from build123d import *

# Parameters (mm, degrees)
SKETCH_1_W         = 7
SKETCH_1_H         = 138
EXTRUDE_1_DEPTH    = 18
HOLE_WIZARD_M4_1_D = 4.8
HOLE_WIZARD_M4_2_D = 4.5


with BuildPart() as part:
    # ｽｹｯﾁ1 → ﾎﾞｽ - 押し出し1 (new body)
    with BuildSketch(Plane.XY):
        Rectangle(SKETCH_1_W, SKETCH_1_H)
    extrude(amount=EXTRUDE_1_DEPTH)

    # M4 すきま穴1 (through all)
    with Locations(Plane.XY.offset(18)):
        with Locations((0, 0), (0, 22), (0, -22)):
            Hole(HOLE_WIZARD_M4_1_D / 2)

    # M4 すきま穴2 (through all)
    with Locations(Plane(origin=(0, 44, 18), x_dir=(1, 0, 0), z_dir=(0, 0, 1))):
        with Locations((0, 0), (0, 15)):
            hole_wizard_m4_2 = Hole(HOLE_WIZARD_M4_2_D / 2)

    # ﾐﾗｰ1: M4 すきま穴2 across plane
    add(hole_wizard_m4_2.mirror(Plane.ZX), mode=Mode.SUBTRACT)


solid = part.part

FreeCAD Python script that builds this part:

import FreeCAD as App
import Part
import Sketcher
from FreeCAD import Vector

doc = App.newDocument("Part")
params = doc.addObject("Spreadsheet::Sheet", "Params")
for row, (alias, value) in enumerate([
    ("sketch1_width", "7 mm"),
    ("sketch1_height", "138 mm"),
    ("pad1_length", "18 mm"),
    ("sketch2_diameter", "4.8 mm"),
    ("hole_diameter", "4.8 mm"),
    ("sketch3_diameter", "4.5 mm"),
    ("hole2_diameter", "4.5 mm"),
], start=1):
    params.set(f"A{row}", alias)
    params.set(f"B{row}", "=" + value)
    params.setAlias(f"B{row}", alias)

body = doc.addObject("PartDesign::Body", "Body")

sketch1 = body.newObject("Sketcher::SketchObject", "Sketch")
sketch1.AttachmentSupport = (doc.getObject("XY_Plane"), [""])
sketch1.MapMode = "FlatFace"
sketch1.addGeometry(Part.LineSegment(Vector(-4, 69, 0), Vector(-4, -69, 0)), False)
sketch1.addGeometry(Part.LineSegment(Vector(-4, -69, 0), Vector(4, -69, 0)), False)
sketch1.addGeometry(Part.LineSegment(Vector(4, -69, 0), Vector(4, 69, 0)), False)
sketch1.addGeometry(Part.LineSegment(Vector(4, 69, 0), Vector(-4, 69, 0)), False)
sketch1.addConstraint(Sketcher.Constraint("Coincident", 0, 2, 1, 1))
sketch1.addConstraint(Sketcher.Constraint("Coincident", 1, 2, 2, 1))
sketch1.addConstraint(Sketcher.Constraint("Coincident", 2, 2, 3, 1))
sketch1.addConstraint(Sketcher.Constraint("Coincident", 3, 2, 0, 1))
sketch1.addConstraint(Sketcher.Constraint("Vertical", 0))
sketch1.addConstraint(Sketcher.Constraint("Horizontal", 1))
sketch1.addConstraint(Sketcher.Constraint("Vertical", 2))
sketch1.addConstraint(Sketcher.Constraint("Horizontal", 3))
sketch1.addConstraint(Sketcher.Constraint("Symmetric", 0, 2, 2, 2, -1, 1))
sketch1.addConstraint(Sketcher.Constraint("DistanceX", 1, 1, 1, 2, 7.0))
sketch1.addConstraint(Sketcher.Constraint("DistanceY", 0, 2, 0, 1, 138.0))
sketch1.setExpression("Constraints[9]", "Params.sketch1_width")
sketch1.setExpression("Constraints[10]", "Params.sketch1_height")
pad1 = body.newObject("PartDesign::Pad", "Pad")
pad1.Profile = sketch1
pad1.setExpression("Length", "Params.pad1_length")

sketch2 = body.newObject("Sketcher::SketchObject", "Sketch001")
sketch2.AttachmentSupport = (doc.getObject("XY_Plane"), [""])
sketch2.MapMode = "FlatFace"
sketch2.AttachmentOffset = App.Placement(Vector(0, 0, 18), App.Rotation())
sketch2.addGeometry(Part.Circle(Vector(0, 0, 0), Vector(0, 0, 1), 2.4), False)
sketch2.addGeometry(Part.Circle(Vector(0, 22, 0), Vector(0, 0, 1), 2.4), False)
sketch2.addGeometry(Part.Circle(Vector(0, -22, 0), Vector(0, 0, 1), 2.4), False)
sketch2.addConstraint(Sketcher.Constraint("Coincident", 0, 3, -1, 1))
sketch2.addConstraint(Sketcher.Constraint("Equal", 0, 1))
sketch2.addConstraint(Sketcher.Constraint("Equal", 1, 2))
sketch2.addConstraint(Sketcher.Constraint("Symmetric", 1, 3, 2, 3, -1, 1))
sketch2.addConstraint(Sketcher.Constraint("PointOnObject", 1, 3, -2))
sketch2.addConstraint(Sketcher.Constraint("Diameter", 0, 4.8))
sketch2.addConstraint(Sketcher.Constraint("DistanceY", -1, 1, 1, 3, 22.0))
sketch2.setExpression("Constraints[5]", "Params.sketch2_diameter")
doc.recompute()
hole = body.newObject("PartDesign::Hole", "Hole")
hole.Profile = sketch2
hole.ThreadType = "None"
hole.setExpression("Diameter", "Params.hole_diameter")
hole.DepthType = "ThroughAll"

sketch3 = body.newObject("Sketcher::SketchObject", "Sketch002")
sketch3.AttachmentSupport = (doc.getObject("XY_Plane"), [""])
sketch3.MapMode = "FlatFace"
sketch3.AttachmentOffset = App.Placement(Vector(0, 0, 18), App.Rotation())
sketch3.addGeometry(Part.Circle(Vector(0, 44, 0), Vector(0, 0, 1), 2.2), False)
sketch3.addGeometry(Part.Circle(Vector(0, 59, 0), Vector(0, 0, 1), 2.2), False)
sketch3.addConstraint(Sketcher.Constraint("Equal", 0, 1))
sketch3.addConstraint(Sketcher.Constraint("PointOnObject", 0, 3, -2))
sketch3.addConstraint(Sketcher.Constraint("PointOnObject", 1, 3, -2))
sketch3.addConstraint(Sketcher.Constraint("Diameter", 0, 4.5))
sketch3.addConstraint(Sketcher.Constraint("DistanceY", -1, 1, 0, 3, 44.0))
sketch3.addConstraint(Sketcher.Constraint("DistanceY", -1, 1, 1, 3, 59.0))
sketch3.setExpression("Constraints[3]", "Params.sketch3_diameter")
doc.recompute()
hole2 = body.newObject("PartDesign::Hole", "Hole001")
hole2.Profile = sketch3
hole2.ThreadType = "None"
hole2.setExpression("Diameter", "Params.hole2_diameter")
hole2.DepthType = "ThroughAll"
doc.recompute()

mirrored = body.newObject("PartDesign::Mirrored", "Mirrored")
mirrored.Originals = [hole2]
mirrored.MirrorPlane = (doc.getObject("XZ_Plane"), [""])
body.Tip = mirrored

doc.recompute()
